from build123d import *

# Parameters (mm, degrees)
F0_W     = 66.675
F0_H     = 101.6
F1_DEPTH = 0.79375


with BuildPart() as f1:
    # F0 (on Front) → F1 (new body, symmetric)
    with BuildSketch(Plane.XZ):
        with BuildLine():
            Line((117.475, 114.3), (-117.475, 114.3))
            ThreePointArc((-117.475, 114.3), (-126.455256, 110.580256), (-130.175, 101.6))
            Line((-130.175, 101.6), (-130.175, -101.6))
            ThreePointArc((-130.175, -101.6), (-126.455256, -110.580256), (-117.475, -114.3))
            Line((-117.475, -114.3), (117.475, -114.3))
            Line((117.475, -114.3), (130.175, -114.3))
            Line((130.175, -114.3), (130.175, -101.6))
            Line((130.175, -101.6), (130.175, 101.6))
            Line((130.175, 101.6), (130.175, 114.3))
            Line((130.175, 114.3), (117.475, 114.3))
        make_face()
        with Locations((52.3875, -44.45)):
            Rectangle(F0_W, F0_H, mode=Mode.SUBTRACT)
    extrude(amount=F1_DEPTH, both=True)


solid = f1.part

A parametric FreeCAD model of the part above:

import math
import FreeCAD as App
import Part
import Sketcher
from FreeCAD import Vector
Q = App.Units.Quantity

doc = App.newDocument("Part")
body = doc.addObject("PartDesign::Body", "Body")

# Sketch on XZ plane
sketch1 = body.newObject("Sketcher::SketchObject", "Sketch")
sketch1.AttachmentSupport = (doc.getObject("XZ_Plane"), [""])
sketch1.MapMode = "FlatFace"
sketch1.addGeometry([
    Part.ArcOfCircle(Part.Circle(Vector(-117, 102, 0), Vector(0, 0, 1), 13), math.radians(90), math.radians(180)),  # 0
    Part.LineSegment(Vector(-130, 102, 0), Vector(-130, -102, 0)),  # 1
    Part.ArcOfCircle(Part.Circle(Vector(-117, -102, 0), Vector(0, 0, 1), 13), math.radians(-180), math.radians(-90)),  # 2
    Part.LineSegment(Vector(-117, -114, 0), Vector(130, -114, 0)),  # 3
    Part.LineSegment(Vector(130, -114, 0), Vector(130, 114, 0)),  # 4
    Part.LineSegment(Vector(130, 114, 0), Vector(-117, 114, 0)),  # 5
    Part.LineSegment(Vector(86, -95, 0), Vector(19, -95, 0)),  # 6
    Part.LineSegment(Vector(19, -95, 0), Vector(19, 6, 0)),  # 7
    Part.LineSegment(Vector(19, 6, 0), Vector(86, 6, 0)),  # 8
    Part.LineSegment(Vector(86, 6, 0), Vector(86, -95, 0)),  # 9
], False)
sketch1.addConstraint([
    Sketcher.Constraint("Tangent", 0, 2, 1, 1),
    Sketcher.Constraint("Tangent", 1, 2, 2, 1),
    Sketcher.Constraint("Tangent", 2, 2, 3, 1),
    Sketcher.Constraint("Coincident", 3, 2, 4, 1),
    Sketcher.Constraint("Coincident", 4, 2, 5, 1),
    Sketcher.Constraint("Tangent", 5, 2, 0, 1),
    Sketcher.Constraint("Coincident", 6, 2, 7, 1),
    Sketcher.Constraint("Coincident", 7, 2, 8, 1),
    Sketcher.Constraint("Coincident", 8, 2, 9, 1),
    Sketcher.Constraint("Coincident", 9, 2, 6, 1),
    Sketcher.Constraint("Vertical", 1),
    Sketcher.Constraint("Horizontal", 3),
    Sketcher.Constraint("Vertical", 4),
    Sketcher.Constraint("Horizontal", 5),
    Sketcher.Constraint("Horizontal", 6),
    Sketcher.Constraint("Vertical", 7),
    Sketcher.Constraint("Horizontal", 8),
    Sketcher.Constraint("Vertical", 9),
    Sketcher.Constraint("Equal", 0, 2),
    Sketcher.Constraint("Radius", 0, Q("0.5 in")),
    Sketcher.Constraint("DistanceY", 1, 2, 1, 1, Q("8 in")),
    Sketcher.Constraint("DistanceY", 7, 1, 7, 2, Q("4 in")),
    Sketcher.Constraint("DistanceY", -1, 1, 0, 3, Q("4 in")),
    Sketcher.Constraint("DistanceX", 0, 3, 8, 2, Q("8 in")),
    Sketcher.Constraint("DistanceX", 3, 1, 3, 2, Q("9.75 in")),
    Sketcher.Constraint("DistanceX", 6, 2, 6, 1, Q("2.625 in")),
    Sketcher.Constraint("DistanceX", -1, 1, 6, 2, Q("0.75 in")),
    Sketcher.Constraint("DistanceY", 6, 2, -1, 1, Q("3.75 in")),
])
pad1 = body.newObject("PartDesign::Pad", "Pad")
pad1.Profile = sketch1
pad1.Length = Q("0.0625 in")
pad1.Midplane = True

doc.recompute()
